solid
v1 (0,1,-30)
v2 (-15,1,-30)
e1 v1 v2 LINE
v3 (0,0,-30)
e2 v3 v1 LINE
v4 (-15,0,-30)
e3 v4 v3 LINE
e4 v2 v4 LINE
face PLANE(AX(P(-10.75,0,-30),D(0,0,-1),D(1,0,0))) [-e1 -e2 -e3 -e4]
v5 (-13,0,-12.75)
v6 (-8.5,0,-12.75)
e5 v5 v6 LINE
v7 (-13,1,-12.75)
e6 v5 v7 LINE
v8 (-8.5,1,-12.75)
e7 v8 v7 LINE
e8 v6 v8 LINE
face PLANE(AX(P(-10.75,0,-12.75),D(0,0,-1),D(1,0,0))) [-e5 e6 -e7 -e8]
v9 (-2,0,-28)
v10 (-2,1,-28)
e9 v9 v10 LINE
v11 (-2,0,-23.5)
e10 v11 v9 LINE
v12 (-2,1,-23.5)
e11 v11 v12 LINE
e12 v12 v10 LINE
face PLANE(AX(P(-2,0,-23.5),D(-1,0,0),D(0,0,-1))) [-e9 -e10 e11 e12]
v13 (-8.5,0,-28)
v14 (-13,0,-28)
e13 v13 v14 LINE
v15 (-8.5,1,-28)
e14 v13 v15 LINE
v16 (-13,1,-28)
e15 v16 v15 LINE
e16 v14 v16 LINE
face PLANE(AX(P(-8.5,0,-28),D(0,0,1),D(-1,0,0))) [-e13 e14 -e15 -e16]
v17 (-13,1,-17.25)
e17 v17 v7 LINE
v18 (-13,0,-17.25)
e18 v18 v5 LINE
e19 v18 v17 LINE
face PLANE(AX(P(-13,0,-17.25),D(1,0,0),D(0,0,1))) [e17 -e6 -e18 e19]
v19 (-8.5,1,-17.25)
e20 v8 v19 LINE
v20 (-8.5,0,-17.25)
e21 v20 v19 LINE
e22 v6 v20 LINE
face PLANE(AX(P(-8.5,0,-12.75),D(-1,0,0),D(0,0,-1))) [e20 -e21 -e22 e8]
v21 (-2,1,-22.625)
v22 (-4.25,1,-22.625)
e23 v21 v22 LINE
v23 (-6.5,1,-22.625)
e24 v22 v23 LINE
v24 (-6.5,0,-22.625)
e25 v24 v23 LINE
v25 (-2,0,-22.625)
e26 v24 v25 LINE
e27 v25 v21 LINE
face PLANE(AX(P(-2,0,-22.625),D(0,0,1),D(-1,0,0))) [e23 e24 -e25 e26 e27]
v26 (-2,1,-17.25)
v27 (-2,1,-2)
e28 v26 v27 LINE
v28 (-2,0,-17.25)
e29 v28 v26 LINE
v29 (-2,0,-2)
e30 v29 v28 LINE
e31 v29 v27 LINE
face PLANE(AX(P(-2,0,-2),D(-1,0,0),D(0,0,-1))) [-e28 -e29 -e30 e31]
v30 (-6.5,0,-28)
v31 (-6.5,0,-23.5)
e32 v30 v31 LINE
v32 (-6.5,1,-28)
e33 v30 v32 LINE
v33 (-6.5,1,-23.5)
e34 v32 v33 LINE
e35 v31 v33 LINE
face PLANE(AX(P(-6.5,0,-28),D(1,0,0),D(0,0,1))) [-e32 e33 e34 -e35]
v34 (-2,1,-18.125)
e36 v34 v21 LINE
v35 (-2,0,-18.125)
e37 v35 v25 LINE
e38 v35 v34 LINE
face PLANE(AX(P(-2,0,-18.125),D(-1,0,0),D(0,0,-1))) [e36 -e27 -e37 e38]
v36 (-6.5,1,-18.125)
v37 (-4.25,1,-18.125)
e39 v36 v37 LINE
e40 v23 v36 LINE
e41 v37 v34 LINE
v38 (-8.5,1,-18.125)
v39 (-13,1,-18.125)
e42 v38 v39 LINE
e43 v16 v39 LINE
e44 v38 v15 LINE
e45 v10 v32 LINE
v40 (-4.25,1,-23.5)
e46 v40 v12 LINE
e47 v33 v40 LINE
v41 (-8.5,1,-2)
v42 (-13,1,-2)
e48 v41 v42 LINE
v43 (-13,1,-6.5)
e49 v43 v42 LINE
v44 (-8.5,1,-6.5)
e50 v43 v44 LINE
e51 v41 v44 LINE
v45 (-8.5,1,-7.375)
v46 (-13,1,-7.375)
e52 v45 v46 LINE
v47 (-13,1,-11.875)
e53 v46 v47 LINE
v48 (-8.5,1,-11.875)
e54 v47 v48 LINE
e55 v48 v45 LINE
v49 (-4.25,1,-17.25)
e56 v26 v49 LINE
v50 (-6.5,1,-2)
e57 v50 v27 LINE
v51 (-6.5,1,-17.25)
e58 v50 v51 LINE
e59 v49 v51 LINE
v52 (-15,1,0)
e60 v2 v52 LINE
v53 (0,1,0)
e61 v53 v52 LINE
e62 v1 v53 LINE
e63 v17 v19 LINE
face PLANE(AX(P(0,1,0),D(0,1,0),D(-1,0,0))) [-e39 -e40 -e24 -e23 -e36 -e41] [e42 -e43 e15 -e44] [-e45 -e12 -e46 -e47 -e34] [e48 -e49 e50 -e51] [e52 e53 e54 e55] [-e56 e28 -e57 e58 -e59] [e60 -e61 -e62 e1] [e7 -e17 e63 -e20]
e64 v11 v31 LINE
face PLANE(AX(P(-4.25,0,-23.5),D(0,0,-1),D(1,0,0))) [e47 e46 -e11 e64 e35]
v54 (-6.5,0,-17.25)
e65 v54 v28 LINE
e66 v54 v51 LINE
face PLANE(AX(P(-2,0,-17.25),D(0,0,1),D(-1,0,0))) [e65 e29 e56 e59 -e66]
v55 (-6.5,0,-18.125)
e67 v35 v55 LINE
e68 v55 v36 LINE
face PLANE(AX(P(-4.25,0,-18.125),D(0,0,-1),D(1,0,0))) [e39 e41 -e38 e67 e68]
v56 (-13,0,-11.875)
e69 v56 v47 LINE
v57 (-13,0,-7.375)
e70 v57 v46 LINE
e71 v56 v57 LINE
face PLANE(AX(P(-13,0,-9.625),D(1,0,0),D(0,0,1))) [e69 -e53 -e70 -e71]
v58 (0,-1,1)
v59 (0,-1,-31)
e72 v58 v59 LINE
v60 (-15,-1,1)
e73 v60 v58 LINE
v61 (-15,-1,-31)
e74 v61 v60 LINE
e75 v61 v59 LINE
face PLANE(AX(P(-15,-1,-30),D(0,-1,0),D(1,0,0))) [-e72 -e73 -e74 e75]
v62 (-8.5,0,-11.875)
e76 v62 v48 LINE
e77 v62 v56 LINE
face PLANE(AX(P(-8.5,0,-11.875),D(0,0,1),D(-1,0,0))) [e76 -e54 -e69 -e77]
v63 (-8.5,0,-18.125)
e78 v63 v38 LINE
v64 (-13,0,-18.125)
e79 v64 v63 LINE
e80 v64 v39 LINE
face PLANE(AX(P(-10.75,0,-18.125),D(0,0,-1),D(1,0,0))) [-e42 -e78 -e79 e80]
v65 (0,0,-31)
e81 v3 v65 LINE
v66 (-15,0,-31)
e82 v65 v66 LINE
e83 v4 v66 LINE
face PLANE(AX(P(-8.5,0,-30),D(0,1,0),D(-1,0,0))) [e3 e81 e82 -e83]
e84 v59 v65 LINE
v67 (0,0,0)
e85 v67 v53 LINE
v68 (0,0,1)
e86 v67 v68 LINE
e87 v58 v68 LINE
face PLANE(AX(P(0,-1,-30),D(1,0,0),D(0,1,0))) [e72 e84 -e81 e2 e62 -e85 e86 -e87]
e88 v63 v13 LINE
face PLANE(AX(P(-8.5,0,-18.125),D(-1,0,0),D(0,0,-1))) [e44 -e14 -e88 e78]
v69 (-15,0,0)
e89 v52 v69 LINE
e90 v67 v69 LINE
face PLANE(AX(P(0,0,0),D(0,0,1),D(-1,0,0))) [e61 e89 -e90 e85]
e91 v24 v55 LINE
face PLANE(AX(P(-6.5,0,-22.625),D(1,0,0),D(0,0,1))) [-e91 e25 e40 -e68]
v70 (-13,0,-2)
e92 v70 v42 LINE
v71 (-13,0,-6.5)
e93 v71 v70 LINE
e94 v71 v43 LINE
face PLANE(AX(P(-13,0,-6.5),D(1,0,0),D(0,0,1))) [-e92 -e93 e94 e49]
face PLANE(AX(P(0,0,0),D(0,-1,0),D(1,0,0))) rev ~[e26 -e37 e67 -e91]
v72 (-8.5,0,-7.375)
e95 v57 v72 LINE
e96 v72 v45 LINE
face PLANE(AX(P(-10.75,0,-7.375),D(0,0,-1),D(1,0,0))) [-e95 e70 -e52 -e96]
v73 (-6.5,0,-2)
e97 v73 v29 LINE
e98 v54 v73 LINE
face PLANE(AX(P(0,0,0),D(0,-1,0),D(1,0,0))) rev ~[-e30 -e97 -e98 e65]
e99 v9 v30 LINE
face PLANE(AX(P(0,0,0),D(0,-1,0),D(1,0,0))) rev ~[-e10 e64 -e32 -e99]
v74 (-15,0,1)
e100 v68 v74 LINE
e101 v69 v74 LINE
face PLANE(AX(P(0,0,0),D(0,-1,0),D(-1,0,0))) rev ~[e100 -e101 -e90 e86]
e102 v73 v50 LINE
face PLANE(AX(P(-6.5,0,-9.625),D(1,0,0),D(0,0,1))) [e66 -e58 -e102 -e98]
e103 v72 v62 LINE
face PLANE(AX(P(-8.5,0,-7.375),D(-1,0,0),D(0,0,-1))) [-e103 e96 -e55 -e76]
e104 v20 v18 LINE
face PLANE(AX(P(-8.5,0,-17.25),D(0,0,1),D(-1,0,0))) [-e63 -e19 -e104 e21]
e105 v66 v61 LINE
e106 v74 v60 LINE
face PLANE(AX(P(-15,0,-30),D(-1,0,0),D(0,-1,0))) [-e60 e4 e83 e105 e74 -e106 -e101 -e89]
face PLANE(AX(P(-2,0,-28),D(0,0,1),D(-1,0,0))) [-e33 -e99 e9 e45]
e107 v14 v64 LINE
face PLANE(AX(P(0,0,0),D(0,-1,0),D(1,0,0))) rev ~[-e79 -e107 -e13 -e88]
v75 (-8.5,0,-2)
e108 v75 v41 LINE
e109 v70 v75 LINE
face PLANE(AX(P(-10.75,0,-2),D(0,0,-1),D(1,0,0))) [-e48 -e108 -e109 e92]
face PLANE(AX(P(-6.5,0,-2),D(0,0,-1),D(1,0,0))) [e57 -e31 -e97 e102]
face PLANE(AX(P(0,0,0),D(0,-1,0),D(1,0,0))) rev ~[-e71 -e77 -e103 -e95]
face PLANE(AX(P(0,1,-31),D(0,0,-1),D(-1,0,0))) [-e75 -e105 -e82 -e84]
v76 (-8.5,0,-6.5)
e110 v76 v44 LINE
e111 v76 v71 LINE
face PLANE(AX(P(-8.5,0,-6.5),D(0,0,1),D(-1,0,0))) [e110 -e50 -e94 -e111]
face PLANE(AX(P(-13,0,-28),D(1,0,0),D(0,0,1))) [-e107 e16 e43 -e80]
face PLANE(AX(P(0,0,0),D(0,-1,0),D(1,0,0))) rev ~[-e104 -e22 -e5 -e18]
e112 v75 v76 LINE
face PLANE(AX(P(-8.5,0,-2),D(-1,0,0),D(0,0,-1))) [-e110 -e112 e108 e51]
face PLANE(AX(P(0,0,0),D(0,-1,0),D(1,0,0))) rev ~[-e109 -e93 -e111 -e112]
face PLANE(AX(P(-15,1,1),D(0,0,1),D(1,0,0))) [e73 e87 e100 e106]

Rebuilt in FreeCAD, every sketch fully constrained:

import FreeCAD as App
import Part
import Sketcher


def add_polygon(sketch, points):
    """Adds a closed chain of lines whose ends are joined by coincident constraints."""
    first, n = sketch.GeometryCount, len(points)
    for a, b in zip(points, points[1:] + points[:1]):
        sketch.addGeometry(Part.LineSegment(App.Vector(*a, 0), App.Vector(*b, 0)), False)
    for i in range(n):
        sketch.addConstraint(Sketcher.Constraint("Coincident", first + i, 2, first + (i + 1) % n, 1))

doc = App.newDocument("Part")
body = doc.addObject("PartDesign::Body", "Body")

sketch1 = doc.addObject("Sketcher::SketchObject", "Sketch")
body.addObject(sketch1)
sketch1.AttachmentSupport = (doc.XZ_Plane, [""])
sketch1.MapMode = "FlatFace"
add_polygon(sketch1, [(0, 0), (0, -30), (-15, -30), (-15, 0)])
add_polygon(sketch1, [(-8.5, -2), (-13, -2), (-13, -6.5), (-8.5, -6.5)])
add_polygon(sketch1, [(-8.5, -7.375), (-13, -7.375), (-13, -11.875), (-8.5, -11.875)])
add_polygon(sketch1, [(-6.5, -2), (-6.5, -17.25), (-4.25, -17.25), (-2, -17.25), (-2, -2)])
add_polygon(sketch1, [(-8.5, -12.75), (-13, -12.75), (-13, -17.25), (-8.5, -17.25)])
add_polygon(sketch1, [(-8.5, -18.125), (-13, -18.125), (-13, -28), (-8.5, -28)])
add_polygon(sketch1, [(-2, -23.5), (-4.25, -23.5), (-6.5, -23.5), (-6.5, -28), (-2, -28)])
add_polygon(sketch1, [(-2, -18.125), (-4.25, -18.125), (-6.5, -18.125), (-6.5, -22.625), (-4.25, -22.625), (-2, -22.625)])
sketch1.addConstraint([
    Sketcher.Constraint("Vertical", 0),
    Sketcher.Constraint("Horizontal", 1),
    Sketcher.Constraint("Vertical", 2),
    Sketcher.Constraint("Horizontal", 3),
    Sketcher.Constraint("Horizontal", 4),
    Sketcher.Constraint("Vertical", 5),
    Sketcher.Constraint("Horizontal", 6),
    Sketcher.Constraint("Vertical", 7),
    Sketcher.Constraint("Horizontal", 8),
    Sketcher.Constraint("Vertical", 9),
    Sketcher.Constraint("Horizontal", 10),
    Sketcher.Constraint("Vertical", 11),
    Sketcher.Constraint("Vertical", 12),
    Sketcher.Constraint("Horizontal", 13),
    Sketcher.Constraint("Horizontal", 14),
    Sketcher.Constraint("Vertical", 15),
    Sketcher.Constraint("Horizontal", 16),
    Sketcher.Constraint("Horizontal", 17),
    Sketcher.Constraint("Vertical", 18),
    Sketcher.Constraint("Horizontal", 19),
    Sketcher.Constraint("Vertical", 20),
    Sketcher.Constraint("Horizontal", 21),
    Sketcher.Constraint("Vertical", 22),
    Sketcher.Constraint("Horizontal", 23),
    Sketcher.Constraint("Vertical", 24),
    Sketcher.Constraint("Horizontal", 25),
    Sketcher.Constraint("Horizontal", 26),
    Sketcher.Constraint("Vertical", 27),
    Sketcher.Constraint("Horizontal", 28),
    Sketcher.Constraint("Vertical", 29),
    Sketcher.Constraint("Horizontal", 30),
    Sketcher.Constraint("Horizontal", 31),
    Sketcher.Constraint("Vertical", 32),
    Sketcher.Constraint("Horizontal", 33),
    Sketcher.Constraint("Horizontal", 34),
    Sketcher.Constraint("Vertical", 35),
    Sketcher.Constraint("Coincident", 3, 2, -1, 1),
    Sketcher.Constraint("Horizontal", 7, 2, 15, 2),
    Sketcher.Constraint("Horizontal", 14, 2, 18, 2),
    Sketcher.Constraint("Horizontal", 23, 2, 27, 2),
    Sketcher.Constraint("Horizontal", 24, 2, 30, 2),
    Sketcher.Constraint("Vertical", 5, 2, 8, 2),
    Sketcher.Constraint("Vertical", 7, 2, 10, 2),
    Sketcher.Constraint("Vertical", 9, 2, 17, 2),
    Sketcher.Constraint("Vertical", 11, 2, 19, 2),
    Sketcher.Constraint("Vertical", 18, 2, 21, 2),
    Sketcher.Constraint("Vertical", 20, 2, 23, 2),
    Sketcher.Constraint("Vertical", 13, 2, 25, 2),
    Sketcher.Constraint("Vertical", 16, 2, 26, 2),
    Sketcher.Constraint("Vertical", 15, 2, 28, 2),
    Sketcher.Constraint("Vertical", 25, 2, 30, 2),
    Sketcher.Constraint("Vertical", 27, 2, 31, 2),
    Sketcher.Constraint("Vertical", 30, 2, 33, 2),
    Sketcher.Constraint("Vertical", 29, 2, 34, 2),
    Sketcher.Constraint("Equal", 13, 14),
    Sketcher.Constraint("Equal", 10, 16),
    Sketcher.Constraint("Equal", 28, 5),
    Sketcher.Constraint("Equal", 7, 9),
    Sketcher.Constraint("Equal", 11, 18),
    Sketcher.Constraint("Equal", 20, 27),
    Sketcher.Constraint("Equal", 29, 32),
    Sketcher.Constraint("DistanceX", 1, 2, 1, 1, 15.0),
    Sketcher.Constraint("DistanceY", 0, 2, 0, 1, 30.0),
    Sketcher.Constraint("DistanceY", 4, 2, -1, 1, 2.0),
    Sketcher.Constraint("DistanceX", 14, 2, -1, 1, 2.0),
    Sketcher.Constraint("DistanceX", 2, 2, 4, 2, 2.0),
    Sketcher.Constraint("DistanceX", 10, 2, 12, 2, 2.0),
    Sketcher.Constraint("DistanceY", 1, 2, 22, 2, 2.0),
    Sketcher.Constraint("DistanceY", 12, 2, 12, 1, 15.25),
    Sketcher.Constraint("DistanceY", 22, 2, 22, 1, 9.875),
    Sketcher.Constraint("DistanceY", 21, 2, 9, 2, 6.25),
])
pad1 = doc.addObject("PartDesign::Pad", "Pad")
body.addObject(pad1)
pad1.Profile = sketch1
pad1.Length = 1
pad1.Reversed = True

sketch2 = doc.addObject("Sketcher::SketchObject", "Sketch001")
body.addObject(sketch2)
sketch2.AttachmentSupport = (doc.XZ_Plane, [""])
sketch2.MapMode = "FlatFace"
add_polygon(sketch2, [(0, -30), (0, 0), (-15, 0), (-15, -30)])
sketch2.addConstraint([
    Sketcher.Constraint("Vertical", 0),
    Sketcher.Constraint("Horizontal", 1),
    Sketcher.Constraint("Vertical", 2),
    Sketcher.Constraint("Horizontal", 3),
    Sketcher.Constraint("Coincident", 0, 2, -1, 1),
    Sketcher.Constraint("DistanceX", 1, 2, 1, 1, 15.0),
    Sketcher.Constraint("DistanceY", 0, 1, 0, 2, 30.0),
])
pad2 = doc.addObject("PartDesign::Pad", "Pad001")
body.addObject(pad2)
pad2.Profile = sketch2
pad2.Length = 1

sketch3 = doc.addObject("Sketcher::SketchObject", "Sketch002")
body.addObject(sketch3)
sketch3.AttachmentSupport = (doc.XY_Plane, [""])
sketch3.MapMode = "FlatFace"
add_polygon(sketch3, [(-15, 0), (-15, -1), (0, -1), (0, 0)])
sketch3.addConstraint([
    Sketcher.Constraint("Vertical", 0),
    Sketcher.Constraint("Horizontal", 1),
    Sketcher.Constraint("Vertical", 2),
    Sketcher.Constraint("Horizontal", 3),
    Sketcher.Constraint("Coincident", 2, 2, -1, 1),
    Sketcher.Constraint("DistanceY", 0, 2, 0, 1, 1.0),
    Sketcher.Constraint("DistanceX", 1, 1, 1, 2, 15.0),
])
pad3 = doc.addObject("PartDesign::Pad", "Pad002")
body.addObject(pad3)
pad3.Profile = sketch3
pad3.Length = 1

sketch4 = doc.addObject("Sketcher::SketchObject", "Sketch003")
body.addObject(sketch4)
sketch4.AttachmentSupport = (doc.XY_Plane, [""])
sketch4.MapMode = "FlatFace"
sketch4.AttachmentOffset = App.Placement(App.Vector(0, 0, -30), App.Rotation())
add_polygon(sketch4, [(-15, 0), (0, 0), (0, -1), (-15, -1)])
sketch4.addConstraint([
    Sketcher.Constraint("Horizontal", 0),
    Sketcher.Constraint("Vertical", 1),
    Sketcher.Constraint("Horizontal", 2),
    Sketcher.Constraint("Vertical", 3),
    Sketcher.Constraint("Coincident", 0, 2, -1, 1),
    Sketcher.Constraint("DistanceX", 0, 1, 0, 2, 15.0),
    Sketcher.Constraint("DistanceY", 1, 2, 1, 1, 1.0),
])
pad4 = doc.addObject("PartDesign::Pad", "Pad003")
body.addObject(pad4)
pad4.Profile = sketch4
pad4.Length = 1
pad4.Reversed = True

doc.recompute()
